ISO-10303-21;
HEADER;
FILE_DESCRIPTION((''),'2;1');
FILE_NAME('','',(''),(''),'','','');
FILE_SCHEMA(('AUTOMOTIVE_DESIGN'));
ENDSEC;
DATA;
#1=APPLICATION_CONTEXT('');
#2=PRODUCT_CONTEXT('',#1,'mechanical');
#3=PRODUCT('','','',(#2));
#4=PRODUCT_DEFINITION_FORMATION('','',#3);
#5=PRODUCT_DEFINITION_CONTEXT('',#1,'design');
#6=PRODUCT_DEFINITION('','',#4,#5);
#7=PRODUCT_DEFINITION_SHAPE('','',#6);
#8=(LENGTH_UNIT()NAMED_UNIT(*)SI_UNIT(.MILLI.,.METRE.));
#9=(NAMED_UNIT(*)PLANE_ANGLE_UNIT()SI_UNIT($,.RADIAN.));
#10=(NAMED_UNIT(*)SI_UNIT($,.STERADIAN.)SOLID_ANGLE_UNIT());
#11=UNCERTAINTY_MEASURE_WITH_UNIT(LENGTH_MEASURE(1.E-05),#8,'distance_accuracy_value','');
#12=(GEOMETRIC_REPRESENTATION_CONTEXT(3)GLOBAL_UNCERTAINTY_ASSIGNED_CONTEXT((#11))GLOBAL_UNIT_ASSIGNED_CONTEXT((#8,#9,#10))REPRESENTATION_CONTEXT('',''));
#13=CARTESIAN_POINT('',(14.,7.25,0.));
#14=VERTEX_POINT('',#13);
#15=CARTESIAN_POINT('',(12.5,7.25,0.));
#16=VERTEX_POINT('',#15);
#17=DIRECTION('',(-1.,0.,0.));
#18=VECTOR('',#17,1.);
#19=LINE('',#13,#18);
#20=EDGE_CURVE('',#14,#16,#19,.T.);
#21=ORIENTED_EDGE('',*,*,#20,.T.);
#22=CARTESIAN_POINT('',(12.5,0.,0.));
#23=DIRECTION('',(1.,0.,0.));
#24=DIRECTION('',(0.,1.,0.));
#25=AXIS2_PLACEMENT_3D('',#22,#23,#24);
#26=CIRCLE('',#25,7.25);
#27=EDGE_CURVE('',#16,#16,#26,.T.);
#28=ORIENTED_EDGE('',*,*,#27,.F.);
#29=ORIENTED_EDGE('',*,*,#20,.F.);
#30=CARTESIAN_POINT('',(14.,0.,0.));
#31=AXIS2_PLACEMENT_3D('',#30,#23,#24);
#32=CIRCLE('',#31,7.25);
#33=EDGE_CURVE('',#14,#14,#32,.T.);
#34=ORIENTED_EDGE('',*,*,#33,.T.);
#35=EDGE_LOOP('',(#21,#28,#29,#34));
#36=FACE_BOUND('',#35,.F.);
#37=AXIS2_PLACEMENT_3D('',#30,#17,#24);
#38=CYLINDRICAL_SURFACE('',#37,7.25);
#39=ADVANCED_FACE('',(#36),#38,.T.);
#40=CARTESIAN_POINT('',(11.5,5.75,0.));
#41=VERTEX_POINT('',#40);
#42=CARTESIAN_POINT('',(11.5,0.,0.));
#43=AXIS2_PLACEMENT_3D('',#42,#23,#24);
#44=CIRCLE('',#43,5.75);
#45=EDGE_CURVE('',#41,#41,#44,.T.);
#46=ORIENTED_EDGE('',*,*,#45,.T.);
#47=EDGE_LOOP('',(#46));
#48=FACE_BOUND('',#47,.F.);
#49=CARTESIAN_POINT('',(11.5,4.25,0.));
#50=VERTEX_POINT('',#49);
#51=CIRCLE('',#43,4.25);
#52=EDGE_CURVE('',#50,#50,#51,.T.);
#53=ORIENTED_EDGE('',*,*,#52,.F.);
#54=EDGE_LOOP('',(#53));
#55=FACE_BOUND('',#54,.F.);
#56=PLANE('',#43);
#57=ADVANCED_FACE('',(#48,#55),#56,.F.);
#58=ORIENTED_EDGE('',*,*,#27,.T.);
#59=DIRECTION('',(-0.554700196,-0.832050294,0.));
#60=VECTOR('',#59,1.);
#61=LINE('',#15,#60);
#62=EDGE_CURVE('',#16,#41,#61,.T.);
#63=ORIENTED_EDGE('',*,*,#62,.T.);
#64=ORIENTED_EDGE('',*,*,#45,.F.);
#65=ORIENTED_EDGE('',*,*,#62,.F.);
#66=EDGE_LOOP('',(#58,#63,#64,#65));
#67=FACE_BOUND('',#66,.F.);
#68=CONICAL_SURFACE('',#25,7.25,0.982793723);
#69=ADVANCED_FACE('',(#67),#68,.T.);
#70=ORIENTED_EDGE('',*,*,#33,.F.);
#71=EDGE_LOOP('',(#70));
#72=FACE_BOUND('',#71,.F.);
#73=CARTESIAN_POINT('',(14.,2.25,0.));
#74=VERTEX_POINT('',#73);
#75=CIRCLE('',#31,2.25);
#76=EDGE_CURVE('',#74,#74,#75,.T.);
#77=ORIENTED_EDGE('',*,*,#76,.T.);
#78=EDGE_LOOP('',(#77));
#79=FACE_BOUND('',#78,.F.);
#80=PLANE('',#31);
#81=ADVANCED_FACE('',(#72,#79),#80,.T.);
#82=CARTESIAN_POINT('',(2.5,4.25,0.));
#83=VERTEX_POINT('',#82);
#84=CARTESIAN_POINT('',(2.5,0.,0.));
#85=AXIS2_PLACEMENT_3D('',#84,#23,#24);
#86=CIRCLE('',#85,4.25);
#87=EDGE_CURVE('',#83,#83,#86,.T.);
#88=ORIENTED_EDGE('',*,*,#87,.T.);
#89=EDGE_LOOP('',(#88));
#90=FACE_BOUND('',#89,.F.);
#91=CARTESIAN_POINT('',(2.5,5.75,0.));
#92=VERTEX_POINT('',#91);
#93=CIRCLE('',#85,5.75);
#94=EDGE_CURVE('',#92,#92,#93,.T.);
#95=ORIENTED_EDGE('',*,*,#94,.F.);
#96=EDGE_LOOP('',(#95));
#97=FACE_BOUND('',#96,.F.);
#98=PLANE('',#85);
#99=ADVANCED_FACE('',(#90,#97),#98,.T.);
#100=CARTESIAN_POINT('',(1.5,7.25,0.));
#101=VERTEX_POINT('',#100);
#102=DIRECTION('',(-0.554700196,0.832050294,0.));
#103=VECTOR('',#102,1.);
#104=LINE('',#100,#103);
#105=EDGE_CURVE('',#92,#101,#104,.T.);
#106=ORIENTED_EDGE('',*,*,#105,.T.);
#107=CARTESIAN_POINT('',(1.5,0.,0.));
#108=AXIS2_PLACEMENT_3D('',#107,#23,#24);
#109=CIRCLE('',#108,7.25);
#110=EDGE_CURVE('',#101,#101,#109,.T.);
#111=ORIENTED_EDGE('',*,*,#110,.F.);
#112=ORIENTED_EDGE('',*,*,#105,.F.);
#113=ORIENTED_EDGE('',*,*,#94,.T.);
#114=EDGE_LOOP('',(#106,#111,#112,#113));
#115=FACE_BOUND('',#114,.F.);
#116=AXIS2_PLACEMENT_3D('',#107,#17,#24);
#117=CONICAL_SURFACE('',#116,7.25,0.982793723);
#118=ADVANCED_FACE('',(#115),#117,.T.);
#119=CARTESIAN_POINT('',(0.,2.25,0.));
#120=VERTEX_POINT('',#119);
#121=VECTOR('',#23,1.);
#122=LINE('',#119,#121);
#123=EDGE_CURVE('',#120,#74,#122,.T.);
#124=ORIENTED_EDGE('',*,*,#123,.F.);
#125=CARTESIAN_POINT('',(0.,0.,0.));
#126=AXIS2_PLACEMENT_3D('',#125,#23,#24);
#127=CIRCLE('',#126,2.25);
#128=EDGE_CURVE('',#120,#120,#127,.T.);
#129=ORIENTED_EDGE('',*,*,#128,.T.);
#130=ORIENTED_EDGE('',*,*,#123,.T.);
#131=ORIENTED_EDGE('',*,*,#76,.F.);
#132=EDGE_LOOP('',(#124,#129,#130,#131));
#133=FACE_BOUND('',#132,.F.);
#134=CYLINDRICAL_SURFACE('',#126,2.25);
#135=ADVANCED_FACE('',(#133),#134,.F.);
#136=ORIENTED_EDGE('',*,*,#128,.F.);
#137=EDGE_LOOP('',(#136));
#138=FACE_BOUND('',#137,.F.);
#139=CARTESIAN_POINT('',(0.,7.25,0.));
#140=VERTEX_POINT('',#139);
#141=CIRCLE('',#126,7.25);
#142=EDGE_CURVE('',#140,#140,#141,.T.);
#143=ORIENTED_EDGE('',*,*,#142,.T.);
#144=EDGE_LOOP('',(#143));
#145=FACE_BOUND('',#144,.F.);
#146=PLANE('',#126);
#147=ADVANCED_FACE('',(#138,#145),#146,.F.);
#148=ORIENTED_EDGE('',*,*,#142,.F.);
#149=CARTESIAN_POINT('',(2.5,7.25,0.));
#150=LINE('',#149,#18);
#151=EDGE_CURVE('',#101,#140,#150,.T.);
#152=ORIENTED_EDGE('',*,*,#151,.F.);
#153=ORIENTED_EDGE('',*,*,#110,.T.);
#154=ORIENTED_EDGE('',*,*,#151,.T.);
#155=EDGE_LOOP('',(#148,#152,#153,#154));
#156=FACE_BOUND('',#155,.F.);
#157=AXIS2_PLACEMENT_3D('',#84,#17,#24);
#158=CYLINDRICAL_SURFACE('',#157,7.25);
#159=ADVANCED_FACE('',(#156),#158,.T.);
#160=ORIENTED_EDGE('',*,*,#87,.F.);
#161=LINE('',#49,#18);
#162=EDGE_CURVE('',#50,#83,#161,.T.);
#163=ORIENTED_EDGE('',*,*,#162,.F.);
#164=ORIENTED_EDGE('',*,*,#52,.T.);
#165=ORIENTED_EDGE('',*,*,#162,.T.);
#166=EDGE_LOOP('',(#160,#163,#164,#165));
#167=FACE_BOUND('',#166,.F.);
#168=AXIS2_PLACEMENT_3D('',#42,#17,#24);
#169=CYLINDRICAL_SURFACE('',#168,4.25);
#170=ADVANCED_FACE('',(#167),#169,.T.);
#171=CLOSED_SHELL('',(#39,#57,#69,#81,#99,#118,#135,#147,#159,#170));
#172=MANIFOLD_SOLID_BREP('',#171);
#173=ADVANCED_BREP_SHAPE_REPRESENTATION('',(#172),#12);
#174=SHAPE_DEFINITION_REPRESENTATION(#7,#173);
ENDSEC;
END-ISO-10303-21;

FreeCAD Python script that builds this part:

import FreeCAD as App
import Part
import Sketcher

V = App.Vector
Q = App.Units.Quantity


def edges_at(feature, points):
    """Names of the edges that pass closest to the given points."""
    edges = feature.Shape.Edges
    near = lambda p: min(range(len(edges)), key=lambda i: edges[i].distToShape(Part.Vertex(*p))[0])
    return sorted({f"Edge{near(p) + 1}" for p in points})


def add_polygon(sketch, points):
    """Adds a closed chain of lines whose ends are joined by coincident constraints."""
    first, n = sketch.GeometryCount, len(points)
    for a, b in zip(points, points[1:] + points[:1]):
        sketch.addGeometry(Part.LineSegment(App.Vector(*a, 0), App.Vector(*b, 0)), False)
    for i in range(n):
        sketch.addConstraint(Sketcher.Constraint("Coincident", first + i, 2, first + (i + 1) % n, 1))

doc = App.newDocument("Part")
body = doc.addObject("PartDesign::Body", "Body")

# Sketch on XY plane
sketch1 = body.newObject("Sketcher::SketchObject", "Sketch")
sketch1.AttachmentSupport = (doc.getObject("XY_Plane"), [""])
sketch1.MapMode = "FlatFace"
add_polygon(sketch1, [(0, 7.2), (0, 2.2), (14, 2.2), (14, 7.2), (11.5, 7.2), (11.5, 4.2), (2.5, 4.2), (2.5, 7.2)])  # lines 0-7
sketch1.addConstraint(Sketcher.Constraint("Vertical", 0))
sketch1.addConstraint(Sketcher.Constraint("Horizontal", 1))
sketch1.addConstraint(Sketcher.Constraint("Vertical", 2))
sketch1.addConstraint(Sketcher.Constraint("Horizontal", 3))
sketch1.addConstraint(Sketcher.Constraint("Vertical", 4))
sketch1.addConstraint(Sketcher.Constraint("Horizontal", 5))
sketch1.addConstraint(Sketcher.Constraint("Vertical", 6))
sketch1.addConstraint(Sketcher.Constraint("Horizontal", 7))
sketch1.addConstraint(Sketcher.Constraint("PointOnObject", 0, 2, -2))
sketch1.addConstraint(Sketcher.Constraint("Horizontal", 3, 2, 6, 2))
sketch1.addConstraint(Sketcher.Constraint("Equal", 3, 7))
sketch1.addConstraint(Sketcher.Constraint("DistanceX", 1, 1, 1, 2, Q("14 mm")))
sketch1.addConstraint(Sketcher.Constraint("DistanceX", 5, 2, 5, 1, Q("9 mm")))
sketch1.addConstraint(Sketcher.Constraint("DistanceY", 4, 2, 4, 1, Q("3 mm")))
sketch1.addConstraint(Sketcher.Constraint("DistanceY", 1, 2, 4, 2, Q("2 mm")))
sketch1.addConstraint(Sketcher.Constraint("DistanceY", -1, 1, 0, 2, Q("2.25 mm")))
revolution = body.newObject("PartDesign::Revolution", "Revolution")
revolution.Profile = sketch1
revolution.ReferenceAxis = (sketch1, ["H_Axis"])
revolution.Angle = 360
doc.recompute()

chamfer = body.newObject("PartDesign::Chamfer", "Chamfer")
chamfer.Base = (revolution, edges_at(revolution, [(2.5, -7.25, 0)]))
chamfer.ChamferType = "Two distances"
chamfer.Size = 1.5
chamfer.Size2 = 1
doc.recompute()

chamfer2 = body.newObject("PartDesign::Chamfer", "Chamfer001")
chamfer2.Base = (chamfer, edges_at(chamfer, [(11.5, -7.25, 0)]))
chamfer2.ChamferType = "Two distances"
chamfer2.Size = 1
chamfer2.Size2 = 1.5
chamfer2.FlipDirection = True

doc.recompute()
